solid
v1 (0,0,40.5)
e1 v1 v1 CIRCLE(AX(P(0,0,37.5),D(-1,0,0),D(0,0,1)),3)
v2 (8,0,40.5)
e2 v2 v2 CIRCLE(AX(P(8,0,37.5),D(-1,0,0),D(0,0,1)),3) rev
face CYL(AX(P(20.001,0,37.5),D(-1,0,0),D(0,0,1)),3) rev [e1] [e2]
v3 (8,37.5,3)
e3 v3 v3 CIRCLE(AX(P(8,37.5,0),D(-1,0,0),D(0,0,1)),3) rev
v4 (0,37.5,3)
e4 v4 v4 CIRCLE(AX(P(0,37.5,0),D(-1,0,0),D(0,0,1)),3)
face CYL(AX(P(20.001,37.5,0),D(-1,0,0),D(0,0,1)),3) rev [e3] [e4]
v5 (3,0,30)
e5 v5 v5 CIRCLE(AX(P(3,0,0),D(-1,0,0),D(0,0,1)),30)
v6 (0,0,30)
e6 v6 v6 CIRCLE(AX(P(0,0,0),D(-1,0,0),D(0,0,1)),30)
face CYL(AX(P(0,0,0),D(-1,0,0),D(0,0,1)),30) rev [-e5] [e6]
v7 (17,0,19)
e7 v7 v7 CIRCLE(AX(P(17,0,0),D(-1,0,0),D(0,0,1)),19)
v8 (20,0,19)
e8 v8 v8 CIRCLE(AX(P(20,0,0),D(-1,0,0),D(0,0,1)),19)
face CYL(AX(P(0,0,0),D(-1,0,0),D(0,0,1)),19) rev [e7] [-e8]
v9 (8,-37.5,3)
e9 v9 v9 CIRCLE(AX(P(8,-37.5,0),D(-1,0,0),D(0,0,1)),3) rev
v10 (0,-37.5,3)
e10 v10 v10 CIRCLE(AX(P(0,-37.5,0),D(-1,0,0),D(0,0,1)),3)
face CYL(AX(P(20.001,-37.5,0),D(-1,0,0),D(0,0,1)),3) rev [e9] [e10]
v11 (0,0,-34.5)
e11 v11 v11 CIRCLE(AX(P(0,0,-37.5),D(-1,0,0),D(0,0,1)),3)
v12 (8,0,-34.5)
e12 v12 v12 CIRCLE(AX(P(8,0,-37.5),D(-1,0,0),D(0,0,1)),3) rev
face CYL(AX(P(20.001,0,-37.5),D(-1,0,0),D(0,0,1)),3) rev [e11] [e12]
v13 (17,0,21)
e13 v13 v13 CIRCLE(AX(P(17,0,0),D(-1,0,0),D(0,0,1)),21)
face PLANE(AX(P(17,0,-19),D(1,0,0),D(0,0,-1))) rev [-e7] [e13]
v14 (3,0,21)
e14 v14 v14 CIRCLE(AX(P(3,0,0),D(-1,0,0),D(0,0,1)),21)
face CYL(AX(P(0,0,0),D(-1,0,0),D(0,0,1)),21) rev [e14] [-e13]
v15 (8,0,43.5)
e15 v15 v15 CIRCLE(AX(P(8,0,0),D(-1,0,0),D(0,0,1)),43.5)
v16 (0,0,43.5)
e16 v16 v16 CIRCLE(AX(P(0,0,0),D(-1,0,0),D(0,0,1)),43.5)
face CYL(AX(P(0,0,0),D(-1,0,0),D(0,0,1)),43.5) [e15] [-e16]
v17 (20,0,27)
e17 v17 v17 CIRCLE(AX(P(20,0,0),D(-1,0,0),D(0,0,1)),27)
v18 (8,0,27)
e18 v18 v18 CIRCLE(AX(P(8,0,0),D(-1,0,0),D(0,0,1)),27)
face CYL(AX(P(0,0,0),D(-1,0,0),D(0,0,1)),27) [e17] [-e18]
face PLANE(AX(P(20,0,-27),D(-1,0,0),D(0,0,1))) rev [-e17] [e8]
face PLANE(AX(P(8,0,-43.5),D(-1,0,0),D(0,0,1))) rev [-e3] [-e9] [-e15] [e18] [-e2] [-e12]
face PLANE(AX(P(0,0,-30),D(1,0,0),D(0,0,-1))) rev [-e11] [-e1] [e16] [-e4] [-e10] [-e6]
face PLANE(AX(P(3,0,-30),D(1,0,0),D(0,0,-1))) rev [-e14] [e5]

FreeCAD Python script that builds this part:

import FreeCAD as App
import Part
import Sketcher
from FreeCAD import Vector
Q = App.Units.Quantity


def add_polygon(sketch, points):
    """Adds a closed chain of lines whose ends are joined by coincident constraints."""
    first, n = sketch.GeometryCount, len(points)
    for a, b in zip(points, points[1:] + points[:1]):
        sketch.addGeometry(Part.LineSegment(App.Vector(*a, 0), App.Vector(*b, 0)), False)
    for i in range(n):
        sketch.addConstraint(Sketcher.Constraint("Coincident", first + i, 2, first + (i + 1) % n, 1))

doc = App.newDocument("Part")
body = doc.addObject("PartDesign::Body", "Body")

# Sketch on XZ plane
sketch1 = body.newObject("Sketcher::SketchObject", "Sketch")
sketch1.AttachmentSupport = (doc.getObject("XZ_Plane"), [""])
sketch1.MapMode = "FlatFace"
add_polygon(sketch1, [(0, -43.5), (0, -30), (3, -30), (3, -21), (17, -21), (17, -19), (20, -19), (20, -27), (8, -27), (8, -43.5)])  # lines 0-9
sketch1.addConstraint([
    Sketcher.Constraint("Vertical", 0),
    Sketcher.Constraint("Horizontal", 1),
    Sketcher.Constraint("Vertical", 2),
    Sketcher.Constraint("Horizontal", 3),
    Sketcher.Constraint("Vertical", 4),
    Sketcher.Constraint("Horizontal", 5),
    Sketcher.Constraint("Vertical", 6),
    Sketcher.Constraint("Horizontal", 7),
    Sketcher.Constraint("Vertical", 8),
    Sketcher.Constraint("Horizontal", 9),
    Sketcher.Constraint("PointOnObject", 0, 2, -2),
    Sketcher.Constraint("Equal", 1, 5),
    Sketcher.Constraint("Equal", 9, 6),
    Sketcher.Constraint("DistanceX", 1, 1, 1, 2, Q("3 mm")),
    Sketcher.Constraint("DistanceX", 3, 1, 3, 2, Q("14 mm")),
    Sketcher.Constraint("DistanceX", 7, 2, 7, 1, Q("12 mm")),
    Sketcher.Constraint("DistanceY", 2, 1, 2, 2, Q("9 mm")),
    Sketcher.Constraint("DistanceY", 4, 1, 4, 2, Q("2 mm")),
    Sketcher.Constraint("DistanceY", 0, 1, 0, 2, Q("13.5 mm")),
    Sketcher.Constraint("DistanceY", 0, 2, -1, 1, Q("30 mm")),
])
revolution = body.newObject("PartDesign::Revolution", "Revolution")
revolution.Profile = sketch1
revolution.ReferenceAxis = (sketch1, ["H_Axis"])
revolution.Angle = 360

# Sketch on YZ plane
sketch2 = body.newObject("Sketcher::SketchObject", "Sketch001")
sketch2.AttachmentSupport = (doc.getObject("YZ_Plane"), [""])
sketch2.MapMode = "FlatFace"
sketch2.addGeometry(Part.Circle(Vector(-37.5, 0, 0), Vector(0, 0, 1), 3), False)
sketch2.addConstraint([
    Sketcher.Constraint("PointOnObject", 0, 3, -1),
    Sketcher.Constraint("Diameter", 0, Q("6 mm")),
    Sketcher.Constraint("DistanceX", 0, 3, -1, 1, Q("37.5 mm")),
])
pocket1 = body.newObject("PartDesign::Pocket", "Pocket")
pocket1.Profile = sketch2
pocket1.Type = "UpToFirst"
pocket1.Reversed = True

# Sketch on YZ plane
sketch3 = body.newObject("Sketcher::SketchObject", "Sketch002")
sketch3.AttachmentSupport = (doc.getObject("YZ_Plane"), [""])
sketch3.MapMode = "FlatFace"
sketch3.addGeometry(Part.Circle(Vector(37.5, 0, 0), Vector(0, 0, 1), 3), False)
sketch3.addConstraint([
    Sketcher.Constraint("PointOnObject", 0, 3, -1),
    Sketcher.Constraint("Diameter", 0, Q("6 mm")),
    Sketcher.Constraint("DistanceX", -1, 1, 0, 3, Q("37.5 mm")),
])
pocket2 = body.newObject("PartDesign::Pocket", "Pocket001")
pocket2.Profile = sketch3
pocket2.Type = "UpToFirst"
pocket2.Reversed = True

# Sketch on YZ plane
sketch4 = body.newObject("Sketcher::SketchObject", "Sketch003")
sketch4.AttachmentSupport = (doc.getObject("YZ_Plane"), [""])
sketch4.MapMode = "FlatFace"
sketch4.addGeometry(Part.Circle(Vector(0, -37.5, 0), Vector(0, 0, 1), 3), False)
sketch4.addConstraint([
    Sketcher.Constraint("PointOnObject", 0, 3, -2),
    Sketcher.Constraint("Diameter", 0, Q("6 mm")),
    Sketcher.Constraint("DistanceY", 0, 3, -1, 1, Q("37.5 mm")),
])
pocket3 = body.newObject("PartDesign::Pocket", "Pocket002")
pocket3.Profile = sketch4
pocket3.Type = "UpToFirst"
pocket3.Reversed = True

# Sketch on YZ plane
sketch5 = body.newObject("Sketcher::SketchObject", "Sketch004")
sketch5.AttachmentSupport = (doc.getObject("YZ_Plane"), [""])
sketch5.MapMode = "FlatFace"
sketch5.addGeometry(Part.Circle(Vector(0, 37.5, 0), Vector(0, 0, 1), 3), False)
sketch5.addConstraint([
    Sketcher.Constraint("PointOnObject", 0, 3, -2),
    Sketcher.Constraint("Diameter", 0, Q("6 mm")),
    Sketcher.Constraint("DistanceY", -1, 1, 0, 3, Q("37.5 mm")),
])
pocket4 = body.newObject("PartDesign::Pocket", "Pocket003")
pocket4.Profile = sketch5
pocket4.Type = "UpToFirst"
pocket4.Reversed = True

doc.recompute()
